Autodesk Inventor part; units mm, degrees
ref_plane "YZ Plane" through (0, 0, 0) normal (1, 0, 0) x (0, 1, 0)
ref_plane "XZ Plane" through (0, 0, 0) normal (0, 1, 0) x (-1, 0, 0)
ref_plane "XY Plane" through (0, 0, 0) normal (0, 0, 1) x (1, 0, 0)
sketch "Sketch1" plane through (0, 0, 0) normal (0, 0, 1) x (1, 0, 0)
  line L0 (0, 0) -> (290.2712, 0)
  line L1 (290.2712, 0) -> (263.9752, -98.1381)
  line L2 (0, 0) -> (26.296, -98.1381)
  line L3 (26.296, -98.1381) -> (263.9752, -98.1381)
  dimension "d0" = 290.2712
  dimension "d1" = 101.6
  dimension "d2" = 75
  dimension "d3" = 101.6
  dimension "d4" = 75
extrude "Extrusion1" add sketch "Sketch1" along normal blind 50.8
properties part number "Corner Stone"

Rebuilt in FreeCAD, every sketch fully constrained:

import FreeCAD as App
import Part
import Sketcher

V = App.Vector
Q = App.Units.Quantity


def add_polygon(sketch, points):
    """Adds a closed chain of lines whose ends are joined by coincident constraints."""
    first, n = sketch.GeometryCount, len(points)
    for a, b in zip(points, points[1:] + points[:1]):
        sketch.addGeometry(Part.LineSegment(App.Vector(*a, 0), App.Vector(*b, 0)), False)
    for i in range(n):
        sketch.addConstraint(Sketcher.Constraint("Coincident", first + i, 2, first + (i + 1) % n, 1))

doc = App.newDocument("Part")
body = doc.addObject("PartDesign::Body", "Body")

sketch1 = doc.addObject("Sketcher::SketchObject", "Sketch")
body.addObject(sketch1)
sketch1.AttachmentSupport = (doc.XY_Plane, [""])
sketch1.MapMode = "FlatFace"
add_polygon(sketch1, [(290, 0), (0, 0), (26, -98), (264, -98)])
sketch1.addConstraint(Sketcher.Constraint("Horizontal", 0))
sketch1.addConstraint(Sketcher.Constraint("Horizontal", 2))
sketch1.addConstraint(Sketcher.Constraint("Coincident", 0, 2, -1, 1))
sketch1.addConstraint(Sketcher.Constraint("Equal", 1, 3))
sketch1.addConstraint(Sketcher.Constraint("Distance", 1, Q("4 in")))
sketch1.addConstraint(Sketcher.Constraint("Angle", 1, Q("-75 deg")))
sketch1.addConstraint(Sketcher.Constraint("DistanceX", 0, 2, 0, 1, Q("11.428 in")))
pad1 = doc.addObject("PartDesign::Pad", "Pad")
body.addObject(pad1)
pad1.Profile = sketch1
pad1.Length = Q("2 in")

doc.recompute()
